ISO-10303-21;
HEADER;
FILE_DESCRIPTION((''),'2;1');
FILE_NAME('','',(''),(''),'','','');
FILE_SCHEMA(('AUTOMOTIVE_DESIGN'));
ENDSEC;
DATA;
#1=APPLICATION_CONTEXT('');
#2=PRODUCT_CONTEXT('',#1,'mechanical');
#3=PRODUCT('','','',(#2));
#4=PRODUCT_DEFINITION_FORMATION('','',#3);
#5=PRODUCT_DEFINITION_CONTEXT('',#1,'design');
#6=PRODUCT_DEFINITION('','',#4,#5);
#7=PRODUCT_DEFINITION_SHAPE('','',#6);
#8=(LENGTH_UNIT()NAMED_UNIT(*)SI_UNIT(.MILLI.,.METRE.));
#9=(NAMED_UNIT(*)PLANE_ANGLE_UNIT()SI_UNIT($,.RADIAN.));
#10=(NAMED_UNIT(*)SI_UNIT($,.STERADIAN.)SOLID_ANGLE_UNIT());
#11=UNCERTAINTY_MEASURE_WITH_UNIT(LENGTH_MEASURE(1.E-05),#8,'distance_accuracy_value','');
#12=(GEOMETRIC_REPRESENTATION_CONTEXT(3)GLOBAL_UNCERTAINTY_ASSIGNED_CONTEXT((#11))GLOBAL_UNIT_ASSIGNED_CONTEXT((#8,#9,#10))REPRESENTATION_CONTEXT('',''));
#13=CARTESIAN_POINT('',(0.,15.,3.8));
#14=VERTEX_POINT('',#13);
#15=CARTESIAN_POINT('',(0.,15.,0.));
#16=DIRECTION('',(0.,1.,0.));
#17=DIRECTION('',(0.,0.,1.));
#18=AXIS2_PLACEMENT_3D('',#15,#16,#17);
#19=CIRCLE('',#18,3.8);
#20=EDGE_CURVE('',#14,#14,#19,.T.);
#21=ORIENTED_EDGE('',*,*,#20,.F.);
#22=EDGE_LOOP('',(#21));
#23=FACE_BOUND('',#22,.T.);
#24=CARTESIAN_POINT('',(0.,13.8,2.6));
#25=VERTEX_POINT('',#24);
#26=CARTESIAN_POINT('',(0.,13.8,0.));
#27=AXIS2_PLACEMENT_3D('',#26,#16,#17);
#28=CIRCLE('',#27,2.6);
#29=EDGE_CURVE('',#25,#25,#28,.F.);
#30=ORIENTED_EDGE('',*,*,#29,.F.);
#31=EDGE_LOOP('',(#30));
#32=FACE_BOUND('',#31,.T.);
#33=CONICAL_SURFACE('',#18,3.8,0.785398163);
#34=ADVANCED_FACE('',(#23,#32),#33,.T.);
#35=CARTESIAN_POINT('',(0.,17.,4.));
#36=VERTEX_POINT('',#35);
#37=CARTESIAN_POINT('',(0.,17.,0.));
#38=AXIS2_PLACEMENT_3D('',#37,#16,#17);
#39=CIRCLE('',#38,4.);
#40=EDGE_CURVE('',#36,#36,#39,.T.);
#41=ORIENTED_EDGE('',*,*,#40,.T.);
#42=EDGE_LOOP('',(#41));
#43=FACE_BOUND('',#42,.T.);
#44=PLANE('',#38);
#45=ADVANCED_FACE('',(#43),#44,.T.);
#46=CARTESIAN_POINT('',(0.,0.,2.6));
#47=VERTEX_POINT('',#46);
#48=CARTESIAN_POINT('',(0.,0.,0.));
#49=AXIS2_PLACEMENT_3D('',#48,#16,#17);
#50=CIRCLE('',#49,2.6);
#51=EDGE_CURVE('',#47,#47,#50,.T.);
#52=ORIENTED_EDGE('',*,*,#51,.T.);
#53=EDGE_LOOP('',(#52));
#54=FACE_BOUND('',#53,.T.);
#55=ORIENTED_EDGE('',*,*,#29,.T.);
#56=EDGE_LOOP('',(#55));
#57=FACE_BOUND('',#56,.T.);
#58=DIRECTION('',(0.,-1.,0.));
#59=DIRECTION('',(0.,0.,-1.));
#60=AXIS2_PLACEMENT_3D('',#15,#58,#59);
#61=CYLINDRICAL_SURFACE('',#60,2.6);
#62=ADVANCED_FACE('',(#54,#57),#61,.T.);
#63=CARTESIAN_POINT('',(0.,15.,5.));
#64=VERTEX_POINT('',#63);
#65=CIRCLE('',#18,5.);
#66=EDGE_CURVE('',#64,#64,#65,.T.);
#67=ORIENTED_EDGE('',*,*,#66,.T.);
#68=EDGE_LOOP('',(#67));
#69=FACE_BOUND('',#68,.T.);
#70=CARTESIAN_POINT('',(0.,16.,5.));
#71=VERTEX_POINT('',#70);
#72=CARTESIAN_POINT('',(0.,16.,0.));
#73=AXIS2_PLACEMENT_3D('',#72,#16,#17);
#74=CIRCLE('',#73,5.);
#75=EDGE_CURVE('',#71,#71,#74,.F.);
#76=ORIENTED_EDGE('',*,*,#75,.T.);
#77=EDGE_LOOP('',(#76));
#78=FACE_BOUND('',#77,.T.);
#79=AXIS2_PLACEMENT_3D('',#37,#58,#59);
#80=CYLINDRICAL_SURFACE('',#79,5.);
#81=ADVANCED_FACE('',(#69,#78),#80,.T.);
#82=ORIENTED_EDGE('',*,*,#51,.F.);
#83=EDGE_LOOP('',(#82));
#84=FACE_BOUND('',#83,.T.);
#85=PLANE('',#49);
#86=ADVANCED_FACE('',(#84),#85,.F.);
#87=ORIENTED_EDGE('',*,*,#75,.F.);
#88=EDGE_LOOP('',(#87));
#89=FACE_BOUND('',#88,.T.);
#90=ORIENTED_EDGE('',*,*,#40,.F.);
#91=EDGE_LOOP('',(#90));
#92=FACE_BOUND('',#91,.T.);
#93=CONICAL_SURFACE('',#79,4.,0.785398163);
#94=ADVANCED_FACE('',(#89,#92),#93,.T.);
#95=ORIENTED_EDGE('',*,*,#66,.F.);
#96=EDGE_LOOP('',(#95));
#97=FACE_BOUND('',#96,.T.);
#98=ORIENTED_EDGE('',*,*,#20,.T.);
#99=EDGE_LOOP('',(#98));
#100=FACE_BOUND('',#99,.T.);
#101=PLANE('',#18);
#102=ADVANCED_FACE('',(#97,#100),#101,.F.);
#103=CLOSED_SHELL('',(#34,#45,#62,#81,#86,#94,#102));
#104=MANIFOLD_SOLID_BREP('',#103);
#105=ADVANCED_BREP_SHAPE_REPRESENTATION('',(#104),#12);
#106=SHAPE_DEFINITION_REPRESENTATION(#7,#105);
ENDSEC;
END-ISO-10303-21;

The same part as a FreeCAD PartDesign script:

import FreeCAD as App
import Part
import Sketcher

V = App.Vector


def edges_at(feature, points):
    """Names of the edges that pass closest to the given points."""
    edges = feature.Shape.Edges
    near = lambda p: min(range(len(edges)), key=lambda i: edges[i].distToShape(Part.Vertex(*p))[0])
    return sorted({f"Edge{near(p) + 1}" for p in points})

doc = App.newDocument("Part")
body = doc.addObject("PartDesign::Body", "Body")

sketch1 = body.newObject("Sketcher::SketchObject", "Sketch")
sketch1.AttachmentSupport = (doc.getObject("XZ_Plane"), [""])
sketch1.MapMode = "FlatFace"
sketch1.addGeometry(Part.Circle(V(0, 0, 0), V(0, 0, 1), 2.6), False)
sketch1.addConstraint(Sketcher.Constraint("Coincident", 0, 3, -1, 1))
sketch1.addConstraint(Sketcher.Constraint("Diameter", 0, 5.2))
pad1 = body.newObject("PartDesign::Pad", "Pad")
pad1.Profile = sketch1
pad1.Length = 15
pad1.Reversed = True

sketch2 = body.newObject("Sketcher::SketchObject", "Sketch001")
sketch2.AttachmentSupport = (doc.getObject("XZ_Plane"), [""])
sketch2.MapMode = "FlatFace"
sketch2.AttachmentOffset = App.Placement(V(0, 0, -15), App.Rotation())
sketch2.addGeometry(Part.Circle(V(0, 0, 0), V(0, 0, 1), 5), False)
sketch2.addConstraint(Sketcher.Constraint("Coincident", 0, 3, -1, 1))
sketch2.addConstraint(Sketcher.Constraint("Diameter", 0, 10.0))
pad2 = body.newObject("PartDesign::Pad", "Pad001")
pad2.Profile = sketch2
pad2.Length = 2
pad2.Reversed = True
doc.recompute()

chamfer = body.newObject("PartDesign::Chamfer", "Chamfer")
chamfer.Base = (pad2, edges_at(pad2, [(-2.6, 15, 0)]))
chamfer.Size = 1.2
doc.recompute()

chamfer2 = body.newObject("PartDesign::Chamfer", "Chamfer001")
chamfer2.Base = (chamfer, edges_at(chamfer, [(-5, 17, 0)]))
chamfer2.Size = 1

doc.recompute()
